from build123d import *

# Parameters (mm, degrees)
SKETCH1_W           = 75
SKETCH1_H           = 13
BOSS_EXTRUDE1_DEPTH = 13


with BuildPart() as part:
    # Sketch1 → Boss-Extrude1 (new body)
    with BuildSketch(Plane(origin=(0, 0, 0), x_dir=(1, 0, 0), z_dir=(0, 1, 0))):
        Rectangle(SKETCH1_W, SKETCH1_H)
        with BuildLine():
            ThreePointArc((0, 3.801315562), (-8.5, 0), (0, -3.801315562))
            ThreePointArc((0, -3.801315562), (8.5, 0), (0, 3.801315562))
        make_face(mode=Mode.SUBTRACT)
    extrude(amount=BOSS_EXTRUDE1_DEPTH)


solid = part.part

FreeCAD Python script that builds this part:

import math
import FreeCAD as App
import Part
import Sketcher
from FreeCAD import Vector


def add_polygon(sketch, points):
    """Adds a closed chain of lines whose ends are joined by coincident constraints."""
    first, n = sketch.GeometryCount, len(points)
    for a, b in zip(points, points[1:] + points[:1]):
        sketch.addGeometry(Part.LineSegment(App.Vector(*a, 0), App.Vector(*b, 0)), False)
    for i in range(n):
        sketch.addConstraint(Sketcher.Constraint("Coincident", first + i, 2, first + (i + 1) % n, 1))

doc = App.newDocument("Part")
body = doc.addObject("PartDesign::Body", "Body")

sketch1 = body.newObject("Sketcher::SketchObject", "Sketch")
sketch1.AttachmentSupport = (doc.getObject("XZ_Plane"), [""])
sketch1.MapMode = "FlatFace"
add_polygon(sketch1, [(-37.5, -6.5), (-37.5, 6.5), (37.5, 6.5), (37.5, -6.5)])
sketch1.addGeometry(Part.ArcOfCircle(Part.Circle(Vector(-3.4, 0, 0), Vector(0, 0, 1), 5.1), math.radians(48.189685), math.radians(311.810315)), False)
sketch1.addGeometry(Part.ArcOfCircle(Part.Circle(Vector(3.4, 0, 0), Vector(0, 0, 1), 5.1), math.radians(-131.810315), math.radians(131.810315)), False)
sketch1.addConstraint(Sketcher.Constraint("Coincident", 4, 1, 5, 2))
sketch1.addConstraint(Sketcher.Constraint("Coincident", 5, 1, 4, 2))
sketch1.addConstraint(Sketcher.Constraint("Vertical", 0))
sketch1.addConstraint(Sketcher.Constraint("Horizontal", 1))
sketch1.addConstraint(Sketcher.Constraint("Vertical", 2))
sketch1.addConstraint(Sketcher.Constraint("Horizontal", 3))
sketch1.addConstraint(Sketcher.Constraint("Equal", 4, 5))
sketch1.addConstraint(Sketcher.Constraint("Symmetric", 4, 3, 5, 3, -1, 1))
sketch1.addConstraint(Sketcher.Constraint("Symmetric", 0, 2, 2, 2, -1, 1))
sketch1.addConstraint(Sketcher.Constraint("PointOnObject", 4, 3, -1))
sketch1.addConstraint(Sketcher.Constraint("Radius", 4, 5.1))
sketch1.addConstraint(Sketcher.Constraint("DistanceX", 1, 1, 1, 2, 75.0))
sketch1.addConstraint(Sketcher.Constraint("DistanceY", 0, 1, 0, 2, 13.0))
sketch1.addConstraint(Sketcher.Constraint("DistanceX", 4, 3, -1, 1, 3.4))
pad1 = body.newObject("PartDesign::Pad", "Pad")
pad1.Profile = sketch1
pad1.Length = 13
pad1.Reversed = True

doc.recompute()
